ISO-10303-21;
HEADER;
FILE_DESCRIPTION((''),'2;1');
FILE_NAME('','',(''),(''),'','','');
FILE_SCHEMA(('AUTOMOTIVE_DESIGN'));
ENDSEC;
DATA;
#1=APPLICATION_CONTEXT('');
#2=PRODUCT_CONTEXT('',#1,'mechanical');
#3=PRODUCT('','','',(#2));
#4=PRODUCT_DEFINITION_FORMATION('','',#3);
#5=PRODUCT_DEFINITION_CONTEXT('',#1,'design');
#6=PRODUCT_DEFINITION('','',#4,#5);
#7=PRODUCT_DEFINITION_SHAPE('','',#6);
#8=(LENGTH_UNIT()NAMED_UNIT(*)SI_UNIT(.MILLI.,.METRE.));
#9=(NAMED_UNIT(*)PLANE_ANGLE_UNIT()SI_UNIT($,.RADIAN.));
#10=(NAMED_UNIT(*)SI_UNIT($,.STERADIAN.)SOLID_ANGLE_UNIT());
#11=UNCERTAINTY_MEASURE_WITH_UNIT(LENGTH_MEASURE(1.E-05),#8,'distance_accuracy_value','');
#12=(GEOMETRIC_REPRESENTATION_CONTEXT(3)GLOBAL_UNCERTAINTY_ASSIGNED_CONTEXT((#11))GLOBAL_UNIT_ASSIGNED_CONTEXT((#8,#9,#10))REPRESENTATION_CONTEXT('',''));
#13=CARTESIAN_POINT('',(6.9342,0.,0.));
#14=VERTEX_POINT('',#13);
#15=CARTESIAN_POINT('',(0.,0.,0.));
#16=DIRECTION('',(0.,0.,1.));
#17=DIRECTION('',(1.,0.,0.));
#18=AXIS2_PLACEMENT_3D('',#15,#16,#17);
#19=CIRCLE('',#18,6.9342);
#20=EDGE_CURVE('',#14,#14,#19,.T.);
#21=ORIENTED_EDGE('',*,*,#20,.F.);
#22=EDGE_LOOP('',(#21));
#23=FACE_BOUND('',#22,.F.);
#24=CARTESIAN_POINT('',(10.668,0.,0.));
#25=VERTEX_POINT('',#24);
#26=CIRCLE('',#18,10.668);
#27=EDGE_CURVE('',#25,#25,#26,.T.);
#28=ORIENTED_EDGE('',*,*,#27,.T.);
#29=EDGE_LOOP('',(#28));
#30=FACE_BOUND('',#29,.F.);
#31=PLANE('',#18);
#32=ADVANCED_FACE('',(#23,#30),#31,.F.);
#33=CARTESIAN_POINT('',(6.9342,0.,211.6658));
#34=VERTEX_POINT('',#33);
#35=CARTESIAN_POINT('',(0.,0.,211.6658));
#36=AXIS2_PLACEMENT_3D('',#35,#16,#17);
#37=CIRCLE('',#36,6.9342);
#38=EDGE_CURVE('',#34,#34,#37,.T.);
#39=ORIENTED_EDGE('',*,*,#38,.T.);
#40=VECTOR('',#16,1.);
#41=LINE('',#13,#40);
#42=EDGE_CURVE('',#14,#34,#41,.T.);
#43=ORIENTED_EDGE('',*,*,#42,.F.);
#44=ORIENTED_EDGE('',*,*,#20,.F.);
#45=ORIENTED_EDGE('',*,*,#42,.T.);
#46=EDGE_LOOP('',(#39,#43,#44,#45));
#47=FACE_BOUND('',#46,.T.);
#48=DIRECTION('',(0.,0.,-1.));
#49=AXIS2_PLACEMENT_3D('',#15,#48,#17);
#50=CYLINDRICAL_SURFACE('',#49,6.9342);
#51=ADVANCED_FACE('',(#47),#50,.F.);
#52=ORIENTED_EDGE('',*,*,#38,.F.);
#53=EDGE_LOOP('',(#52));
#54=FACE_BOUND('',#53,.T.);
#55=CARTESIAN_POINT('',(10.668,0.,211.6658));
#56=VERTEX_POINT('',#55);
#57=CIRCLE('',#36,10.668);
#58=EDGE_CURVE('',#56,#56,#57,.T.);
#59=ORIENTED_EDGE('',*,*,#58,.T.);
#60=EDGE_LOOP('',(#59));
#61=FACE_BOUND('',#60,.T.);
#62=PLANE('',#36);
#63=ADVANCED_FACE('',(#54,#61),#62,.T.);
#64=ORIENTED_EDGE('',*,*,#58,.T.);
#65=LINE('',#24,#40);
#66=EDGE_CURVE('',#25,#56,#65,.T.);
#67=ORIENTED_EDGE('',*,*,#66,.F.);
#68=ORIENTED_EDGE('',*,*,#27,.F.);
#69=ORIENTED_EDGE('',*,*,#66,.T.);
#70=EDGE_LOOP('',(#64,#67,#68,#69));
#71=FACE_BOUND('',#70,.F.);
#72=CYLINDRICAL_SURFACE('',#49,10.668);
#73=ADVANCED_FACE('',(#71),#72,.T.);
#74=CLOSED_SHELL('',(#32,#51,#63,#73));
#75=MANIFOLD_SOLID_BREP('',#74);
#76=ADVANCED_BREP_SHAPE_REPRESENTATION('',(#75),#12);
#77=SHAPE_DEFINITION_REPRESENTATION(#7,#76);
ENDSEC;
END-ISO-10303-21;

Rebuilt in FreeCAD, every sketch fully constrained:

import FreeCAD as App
import Part
import Sketcher
from FreeCAD import Vector
Q = App.Units.Quantity

doc = App.newDocument("Part")
params = doc.addObject("Spreadsheet::Sheet", "Params")
for row, (alias, value) in enumerate([
    ("sketch1_diameter", "0.84 in"),
    ("sketch1_diameter2", "0.546 in"),
    ("pad1_length", "8.3332992 in"),
], start=1):
    params.set(f"A{row}", alias)
    params.set(f"B{row}", "=" + value)
    params.setAlias(f"B{row}", alias)

body = doc.addObject("PartDesign::Body", "Body")

sketch1 = body.newObject("Sketcher::SketchObject", "Sketch")
sketch1.AttachmentSupport = (doc.getObject("XY_Plane"), [""])
sketch1.MapMode = "FlatFace"
sketch1.addGeometry(Part.Circle(Vector(0, 0, 0), Vector(0, 0, 1), 11), False)
sketch1.addGeometry(Part.Circle(Vector(0, 0, 0), Vector(0, 0, 1), 7), False)
sketch1.addConstraint(Sketcher.Constraint("Coincident", 0, 3, -1, 1))
sketch1.addConstraint(Sketcher.Constraint("Coincident", 1, 3, -1, 1))
sketch1.addConstraint(Sketcher.Constraint("Diameter", 0, Q("0.84 in")))
sketch1.addConstraint(Sketcher.Constraint("Diameter", 1, Q("0.546 in")))
sketch1.setExpression("Constraints[2]", "Params.sketch1_diameter")
sketch1.setExpression("Constraints[3]", "Params.sketch1_diameter2")
pad1 = body.newObject("PartDesign::Pad", "Pad")
pad1.Profile = sketch1
pad1.setExpression("Length", "Params.pad1_length")

doc.recompute()
